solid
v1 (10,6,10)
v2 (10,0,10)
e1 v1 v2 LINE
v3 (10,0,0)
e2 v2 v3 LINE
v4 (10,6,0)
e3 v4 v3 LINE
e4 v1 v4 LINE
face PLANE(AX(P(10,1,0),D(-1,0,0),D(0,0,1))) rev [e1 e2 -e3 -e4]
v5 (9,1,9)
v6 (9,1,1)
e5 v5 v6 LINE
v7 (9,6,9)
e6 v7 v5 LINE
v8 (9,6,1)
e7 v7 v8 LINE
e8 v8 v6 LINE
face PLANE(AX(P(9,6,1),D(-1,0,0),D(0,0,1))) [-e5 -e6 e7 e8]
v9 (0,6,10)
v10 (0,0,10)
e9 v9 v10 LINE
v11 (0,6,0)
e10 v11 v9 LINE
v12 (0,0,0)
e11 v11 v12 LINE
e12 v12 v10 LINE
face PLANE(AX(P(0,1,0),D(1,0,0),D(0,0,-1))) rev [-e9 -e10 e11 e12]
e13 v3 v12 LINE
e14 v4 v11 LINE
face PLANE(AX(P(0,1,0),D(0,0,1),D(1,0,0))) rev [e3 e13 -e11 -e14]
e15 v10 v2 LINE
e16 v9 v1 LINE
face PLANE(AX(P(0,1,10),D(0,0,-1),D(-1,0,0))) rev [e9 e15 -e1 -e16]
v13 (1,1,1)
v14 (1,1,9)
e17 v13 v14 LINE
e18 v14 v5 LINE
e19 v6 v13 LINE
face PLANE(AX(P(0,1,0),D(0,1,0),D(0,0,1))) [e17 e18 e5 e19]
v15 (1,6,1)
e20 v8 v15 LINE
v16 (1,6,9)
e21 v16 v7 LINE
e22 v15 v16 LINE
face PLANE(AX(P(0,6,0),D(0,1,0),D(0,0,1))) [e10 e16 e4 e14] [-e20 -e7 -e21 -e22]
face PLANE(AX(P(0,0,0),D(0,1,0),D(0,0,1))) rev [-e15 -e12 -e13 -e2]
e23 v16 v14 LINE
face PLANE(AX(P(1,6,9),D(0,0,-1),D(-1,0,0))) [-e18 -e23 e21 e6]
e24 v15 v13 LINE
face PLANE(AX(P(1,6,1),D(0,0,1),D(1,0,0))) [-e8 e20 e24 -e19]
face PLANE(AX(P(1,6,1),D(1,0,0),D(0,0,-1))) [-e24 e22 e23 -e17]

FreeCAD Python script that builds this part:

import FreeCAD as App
import Part
import Sketcher


def add_polygon(sketch, points):
    """Adds a closed chain of lines whose ends are joined by coincident constraints."""
    first, n = sketch.GeometryCount, len(points)
    for a, b in zip(points, points[1:] + points[:1]):
        sketch.addGeometry(Part.LineSegment(App.Vector(*a, 0), App.Vector(*b, 0)), False)
    for i in range(n):
        sketch.addConstraint(Sketcher.Constraint("Coincident", first + i, 2, first + (i + 1) % n, 1))

doc = App.newDocument("Part")
body = doc.addObject("PartDesign::Body", "Body")

# Sketch on XZ plane
sketch1 = body.newObject("Sketcher::SketchObject", "Sketch")
sketch1.AttachmentSupport = (doc.getObject("XZ_Plane"), [""])
sketch1.MapMode = "FlatFace"
add_polygon(sketch1, [(0, 0), (0, 10), (10, 10), (10, 0)])  # lines 0-3
sketch1.addConstraint(Sketcher.Constraint("Vertical", 0))
sketch1.addConstraint(Sketcher.Constraint("Horizontal", 1))
sketch1.addConstraint(Sketcher.Constraint("Vertical", 2))
sketch1.addConstraint(Sketcher.Constraint("Horizontal", 3))
sketch1.addConstraint(Sketcher.Constraint("Coincident", 3, 2, -1, 1))
sketch1.addConstraint(Sketcher.Constraint("Equal", 3, 0))
sketch1.addConstraint(Sketcher.Constraint("DistanceX", 1, 1, 1, 2, 10.0))
pad1 = body.newObject("PartDesign::Pad", "Pad")
pad1.Profile = sketch1
pad1.Length = 1
pad1.Reversed = True

# Sketch on XZ plane
sketch2 = body.newObject("Sketcher::SketchObject", "Sketch001")
sketch2.AttachmentSupport = (doc.getObject("XZ_Plane"), [""])
sketch2.MapMode = "FlatFace"
sketch2.AttachmentOffset = App.Placement(App.Vector(0, 0, -1), App.Rotation())
add_polygon(sketch2, [(0, 0), (0, 10), (10, 10), (10, 0)])  # lines 0-3
add_polygon(sketch2, [(9, 9), (1, 9), (1, 1), (9, 1)])  # lines 4-7
sketch2.addConstraint(Sketcher.Constraint("Vertical", 0))
sketch2.addConstraint(Sketcher.Constraint("Horizontal", 1))
sketch2.addConstraint(Sketcher.Constraint("Vertical", 2))
sketch2.addConstraint(Sketcher.Constraint("Horizontal", 3))
sketch2.addConstraint(Sketcher.Constraint("Horizontal", 4))
sketch2.addConstraint(Sketcher.Constraint("Vertical", 5))
sketch2.addConstraint(Sketcher.Constraint("Horizontal", 6))
sketch2.addConstraint(Sketcher.Constraint("Vertical", 7))
sketch2.addConstraint(Sketcher.Constraint("Coincident", 3, 2, -1, 1))
sketch2.addConstraint(Sketcher.Constraint("Equal", 3, 0))
sketch2.addConstraint(Sketcher.Constraint("Equal", 6, 5))
sketch2.addConstraint(Sketcher.Constraint("DistanceX", 1, 1, 1, 2, 10.0))
sketch2.addConstraint(Sketcher.Constraint("DistanceX", 4, 2, 4, 1, 8.0))
sketch2.addConstraint(Sketcher.Constraint("DistanceX", -1, 1, 4, 2, 1.0))
sketch2.addConstraint(Sketcher.Constraint("DistanceY", -1, 1, 4, 2, 9.0))
pad2 = body.newObject("PartDesign::Pad", "Pad001")
pad2.Profile = sketch2
pad2.Length = 5
pad2.Reversed = True

doc.recompute()
